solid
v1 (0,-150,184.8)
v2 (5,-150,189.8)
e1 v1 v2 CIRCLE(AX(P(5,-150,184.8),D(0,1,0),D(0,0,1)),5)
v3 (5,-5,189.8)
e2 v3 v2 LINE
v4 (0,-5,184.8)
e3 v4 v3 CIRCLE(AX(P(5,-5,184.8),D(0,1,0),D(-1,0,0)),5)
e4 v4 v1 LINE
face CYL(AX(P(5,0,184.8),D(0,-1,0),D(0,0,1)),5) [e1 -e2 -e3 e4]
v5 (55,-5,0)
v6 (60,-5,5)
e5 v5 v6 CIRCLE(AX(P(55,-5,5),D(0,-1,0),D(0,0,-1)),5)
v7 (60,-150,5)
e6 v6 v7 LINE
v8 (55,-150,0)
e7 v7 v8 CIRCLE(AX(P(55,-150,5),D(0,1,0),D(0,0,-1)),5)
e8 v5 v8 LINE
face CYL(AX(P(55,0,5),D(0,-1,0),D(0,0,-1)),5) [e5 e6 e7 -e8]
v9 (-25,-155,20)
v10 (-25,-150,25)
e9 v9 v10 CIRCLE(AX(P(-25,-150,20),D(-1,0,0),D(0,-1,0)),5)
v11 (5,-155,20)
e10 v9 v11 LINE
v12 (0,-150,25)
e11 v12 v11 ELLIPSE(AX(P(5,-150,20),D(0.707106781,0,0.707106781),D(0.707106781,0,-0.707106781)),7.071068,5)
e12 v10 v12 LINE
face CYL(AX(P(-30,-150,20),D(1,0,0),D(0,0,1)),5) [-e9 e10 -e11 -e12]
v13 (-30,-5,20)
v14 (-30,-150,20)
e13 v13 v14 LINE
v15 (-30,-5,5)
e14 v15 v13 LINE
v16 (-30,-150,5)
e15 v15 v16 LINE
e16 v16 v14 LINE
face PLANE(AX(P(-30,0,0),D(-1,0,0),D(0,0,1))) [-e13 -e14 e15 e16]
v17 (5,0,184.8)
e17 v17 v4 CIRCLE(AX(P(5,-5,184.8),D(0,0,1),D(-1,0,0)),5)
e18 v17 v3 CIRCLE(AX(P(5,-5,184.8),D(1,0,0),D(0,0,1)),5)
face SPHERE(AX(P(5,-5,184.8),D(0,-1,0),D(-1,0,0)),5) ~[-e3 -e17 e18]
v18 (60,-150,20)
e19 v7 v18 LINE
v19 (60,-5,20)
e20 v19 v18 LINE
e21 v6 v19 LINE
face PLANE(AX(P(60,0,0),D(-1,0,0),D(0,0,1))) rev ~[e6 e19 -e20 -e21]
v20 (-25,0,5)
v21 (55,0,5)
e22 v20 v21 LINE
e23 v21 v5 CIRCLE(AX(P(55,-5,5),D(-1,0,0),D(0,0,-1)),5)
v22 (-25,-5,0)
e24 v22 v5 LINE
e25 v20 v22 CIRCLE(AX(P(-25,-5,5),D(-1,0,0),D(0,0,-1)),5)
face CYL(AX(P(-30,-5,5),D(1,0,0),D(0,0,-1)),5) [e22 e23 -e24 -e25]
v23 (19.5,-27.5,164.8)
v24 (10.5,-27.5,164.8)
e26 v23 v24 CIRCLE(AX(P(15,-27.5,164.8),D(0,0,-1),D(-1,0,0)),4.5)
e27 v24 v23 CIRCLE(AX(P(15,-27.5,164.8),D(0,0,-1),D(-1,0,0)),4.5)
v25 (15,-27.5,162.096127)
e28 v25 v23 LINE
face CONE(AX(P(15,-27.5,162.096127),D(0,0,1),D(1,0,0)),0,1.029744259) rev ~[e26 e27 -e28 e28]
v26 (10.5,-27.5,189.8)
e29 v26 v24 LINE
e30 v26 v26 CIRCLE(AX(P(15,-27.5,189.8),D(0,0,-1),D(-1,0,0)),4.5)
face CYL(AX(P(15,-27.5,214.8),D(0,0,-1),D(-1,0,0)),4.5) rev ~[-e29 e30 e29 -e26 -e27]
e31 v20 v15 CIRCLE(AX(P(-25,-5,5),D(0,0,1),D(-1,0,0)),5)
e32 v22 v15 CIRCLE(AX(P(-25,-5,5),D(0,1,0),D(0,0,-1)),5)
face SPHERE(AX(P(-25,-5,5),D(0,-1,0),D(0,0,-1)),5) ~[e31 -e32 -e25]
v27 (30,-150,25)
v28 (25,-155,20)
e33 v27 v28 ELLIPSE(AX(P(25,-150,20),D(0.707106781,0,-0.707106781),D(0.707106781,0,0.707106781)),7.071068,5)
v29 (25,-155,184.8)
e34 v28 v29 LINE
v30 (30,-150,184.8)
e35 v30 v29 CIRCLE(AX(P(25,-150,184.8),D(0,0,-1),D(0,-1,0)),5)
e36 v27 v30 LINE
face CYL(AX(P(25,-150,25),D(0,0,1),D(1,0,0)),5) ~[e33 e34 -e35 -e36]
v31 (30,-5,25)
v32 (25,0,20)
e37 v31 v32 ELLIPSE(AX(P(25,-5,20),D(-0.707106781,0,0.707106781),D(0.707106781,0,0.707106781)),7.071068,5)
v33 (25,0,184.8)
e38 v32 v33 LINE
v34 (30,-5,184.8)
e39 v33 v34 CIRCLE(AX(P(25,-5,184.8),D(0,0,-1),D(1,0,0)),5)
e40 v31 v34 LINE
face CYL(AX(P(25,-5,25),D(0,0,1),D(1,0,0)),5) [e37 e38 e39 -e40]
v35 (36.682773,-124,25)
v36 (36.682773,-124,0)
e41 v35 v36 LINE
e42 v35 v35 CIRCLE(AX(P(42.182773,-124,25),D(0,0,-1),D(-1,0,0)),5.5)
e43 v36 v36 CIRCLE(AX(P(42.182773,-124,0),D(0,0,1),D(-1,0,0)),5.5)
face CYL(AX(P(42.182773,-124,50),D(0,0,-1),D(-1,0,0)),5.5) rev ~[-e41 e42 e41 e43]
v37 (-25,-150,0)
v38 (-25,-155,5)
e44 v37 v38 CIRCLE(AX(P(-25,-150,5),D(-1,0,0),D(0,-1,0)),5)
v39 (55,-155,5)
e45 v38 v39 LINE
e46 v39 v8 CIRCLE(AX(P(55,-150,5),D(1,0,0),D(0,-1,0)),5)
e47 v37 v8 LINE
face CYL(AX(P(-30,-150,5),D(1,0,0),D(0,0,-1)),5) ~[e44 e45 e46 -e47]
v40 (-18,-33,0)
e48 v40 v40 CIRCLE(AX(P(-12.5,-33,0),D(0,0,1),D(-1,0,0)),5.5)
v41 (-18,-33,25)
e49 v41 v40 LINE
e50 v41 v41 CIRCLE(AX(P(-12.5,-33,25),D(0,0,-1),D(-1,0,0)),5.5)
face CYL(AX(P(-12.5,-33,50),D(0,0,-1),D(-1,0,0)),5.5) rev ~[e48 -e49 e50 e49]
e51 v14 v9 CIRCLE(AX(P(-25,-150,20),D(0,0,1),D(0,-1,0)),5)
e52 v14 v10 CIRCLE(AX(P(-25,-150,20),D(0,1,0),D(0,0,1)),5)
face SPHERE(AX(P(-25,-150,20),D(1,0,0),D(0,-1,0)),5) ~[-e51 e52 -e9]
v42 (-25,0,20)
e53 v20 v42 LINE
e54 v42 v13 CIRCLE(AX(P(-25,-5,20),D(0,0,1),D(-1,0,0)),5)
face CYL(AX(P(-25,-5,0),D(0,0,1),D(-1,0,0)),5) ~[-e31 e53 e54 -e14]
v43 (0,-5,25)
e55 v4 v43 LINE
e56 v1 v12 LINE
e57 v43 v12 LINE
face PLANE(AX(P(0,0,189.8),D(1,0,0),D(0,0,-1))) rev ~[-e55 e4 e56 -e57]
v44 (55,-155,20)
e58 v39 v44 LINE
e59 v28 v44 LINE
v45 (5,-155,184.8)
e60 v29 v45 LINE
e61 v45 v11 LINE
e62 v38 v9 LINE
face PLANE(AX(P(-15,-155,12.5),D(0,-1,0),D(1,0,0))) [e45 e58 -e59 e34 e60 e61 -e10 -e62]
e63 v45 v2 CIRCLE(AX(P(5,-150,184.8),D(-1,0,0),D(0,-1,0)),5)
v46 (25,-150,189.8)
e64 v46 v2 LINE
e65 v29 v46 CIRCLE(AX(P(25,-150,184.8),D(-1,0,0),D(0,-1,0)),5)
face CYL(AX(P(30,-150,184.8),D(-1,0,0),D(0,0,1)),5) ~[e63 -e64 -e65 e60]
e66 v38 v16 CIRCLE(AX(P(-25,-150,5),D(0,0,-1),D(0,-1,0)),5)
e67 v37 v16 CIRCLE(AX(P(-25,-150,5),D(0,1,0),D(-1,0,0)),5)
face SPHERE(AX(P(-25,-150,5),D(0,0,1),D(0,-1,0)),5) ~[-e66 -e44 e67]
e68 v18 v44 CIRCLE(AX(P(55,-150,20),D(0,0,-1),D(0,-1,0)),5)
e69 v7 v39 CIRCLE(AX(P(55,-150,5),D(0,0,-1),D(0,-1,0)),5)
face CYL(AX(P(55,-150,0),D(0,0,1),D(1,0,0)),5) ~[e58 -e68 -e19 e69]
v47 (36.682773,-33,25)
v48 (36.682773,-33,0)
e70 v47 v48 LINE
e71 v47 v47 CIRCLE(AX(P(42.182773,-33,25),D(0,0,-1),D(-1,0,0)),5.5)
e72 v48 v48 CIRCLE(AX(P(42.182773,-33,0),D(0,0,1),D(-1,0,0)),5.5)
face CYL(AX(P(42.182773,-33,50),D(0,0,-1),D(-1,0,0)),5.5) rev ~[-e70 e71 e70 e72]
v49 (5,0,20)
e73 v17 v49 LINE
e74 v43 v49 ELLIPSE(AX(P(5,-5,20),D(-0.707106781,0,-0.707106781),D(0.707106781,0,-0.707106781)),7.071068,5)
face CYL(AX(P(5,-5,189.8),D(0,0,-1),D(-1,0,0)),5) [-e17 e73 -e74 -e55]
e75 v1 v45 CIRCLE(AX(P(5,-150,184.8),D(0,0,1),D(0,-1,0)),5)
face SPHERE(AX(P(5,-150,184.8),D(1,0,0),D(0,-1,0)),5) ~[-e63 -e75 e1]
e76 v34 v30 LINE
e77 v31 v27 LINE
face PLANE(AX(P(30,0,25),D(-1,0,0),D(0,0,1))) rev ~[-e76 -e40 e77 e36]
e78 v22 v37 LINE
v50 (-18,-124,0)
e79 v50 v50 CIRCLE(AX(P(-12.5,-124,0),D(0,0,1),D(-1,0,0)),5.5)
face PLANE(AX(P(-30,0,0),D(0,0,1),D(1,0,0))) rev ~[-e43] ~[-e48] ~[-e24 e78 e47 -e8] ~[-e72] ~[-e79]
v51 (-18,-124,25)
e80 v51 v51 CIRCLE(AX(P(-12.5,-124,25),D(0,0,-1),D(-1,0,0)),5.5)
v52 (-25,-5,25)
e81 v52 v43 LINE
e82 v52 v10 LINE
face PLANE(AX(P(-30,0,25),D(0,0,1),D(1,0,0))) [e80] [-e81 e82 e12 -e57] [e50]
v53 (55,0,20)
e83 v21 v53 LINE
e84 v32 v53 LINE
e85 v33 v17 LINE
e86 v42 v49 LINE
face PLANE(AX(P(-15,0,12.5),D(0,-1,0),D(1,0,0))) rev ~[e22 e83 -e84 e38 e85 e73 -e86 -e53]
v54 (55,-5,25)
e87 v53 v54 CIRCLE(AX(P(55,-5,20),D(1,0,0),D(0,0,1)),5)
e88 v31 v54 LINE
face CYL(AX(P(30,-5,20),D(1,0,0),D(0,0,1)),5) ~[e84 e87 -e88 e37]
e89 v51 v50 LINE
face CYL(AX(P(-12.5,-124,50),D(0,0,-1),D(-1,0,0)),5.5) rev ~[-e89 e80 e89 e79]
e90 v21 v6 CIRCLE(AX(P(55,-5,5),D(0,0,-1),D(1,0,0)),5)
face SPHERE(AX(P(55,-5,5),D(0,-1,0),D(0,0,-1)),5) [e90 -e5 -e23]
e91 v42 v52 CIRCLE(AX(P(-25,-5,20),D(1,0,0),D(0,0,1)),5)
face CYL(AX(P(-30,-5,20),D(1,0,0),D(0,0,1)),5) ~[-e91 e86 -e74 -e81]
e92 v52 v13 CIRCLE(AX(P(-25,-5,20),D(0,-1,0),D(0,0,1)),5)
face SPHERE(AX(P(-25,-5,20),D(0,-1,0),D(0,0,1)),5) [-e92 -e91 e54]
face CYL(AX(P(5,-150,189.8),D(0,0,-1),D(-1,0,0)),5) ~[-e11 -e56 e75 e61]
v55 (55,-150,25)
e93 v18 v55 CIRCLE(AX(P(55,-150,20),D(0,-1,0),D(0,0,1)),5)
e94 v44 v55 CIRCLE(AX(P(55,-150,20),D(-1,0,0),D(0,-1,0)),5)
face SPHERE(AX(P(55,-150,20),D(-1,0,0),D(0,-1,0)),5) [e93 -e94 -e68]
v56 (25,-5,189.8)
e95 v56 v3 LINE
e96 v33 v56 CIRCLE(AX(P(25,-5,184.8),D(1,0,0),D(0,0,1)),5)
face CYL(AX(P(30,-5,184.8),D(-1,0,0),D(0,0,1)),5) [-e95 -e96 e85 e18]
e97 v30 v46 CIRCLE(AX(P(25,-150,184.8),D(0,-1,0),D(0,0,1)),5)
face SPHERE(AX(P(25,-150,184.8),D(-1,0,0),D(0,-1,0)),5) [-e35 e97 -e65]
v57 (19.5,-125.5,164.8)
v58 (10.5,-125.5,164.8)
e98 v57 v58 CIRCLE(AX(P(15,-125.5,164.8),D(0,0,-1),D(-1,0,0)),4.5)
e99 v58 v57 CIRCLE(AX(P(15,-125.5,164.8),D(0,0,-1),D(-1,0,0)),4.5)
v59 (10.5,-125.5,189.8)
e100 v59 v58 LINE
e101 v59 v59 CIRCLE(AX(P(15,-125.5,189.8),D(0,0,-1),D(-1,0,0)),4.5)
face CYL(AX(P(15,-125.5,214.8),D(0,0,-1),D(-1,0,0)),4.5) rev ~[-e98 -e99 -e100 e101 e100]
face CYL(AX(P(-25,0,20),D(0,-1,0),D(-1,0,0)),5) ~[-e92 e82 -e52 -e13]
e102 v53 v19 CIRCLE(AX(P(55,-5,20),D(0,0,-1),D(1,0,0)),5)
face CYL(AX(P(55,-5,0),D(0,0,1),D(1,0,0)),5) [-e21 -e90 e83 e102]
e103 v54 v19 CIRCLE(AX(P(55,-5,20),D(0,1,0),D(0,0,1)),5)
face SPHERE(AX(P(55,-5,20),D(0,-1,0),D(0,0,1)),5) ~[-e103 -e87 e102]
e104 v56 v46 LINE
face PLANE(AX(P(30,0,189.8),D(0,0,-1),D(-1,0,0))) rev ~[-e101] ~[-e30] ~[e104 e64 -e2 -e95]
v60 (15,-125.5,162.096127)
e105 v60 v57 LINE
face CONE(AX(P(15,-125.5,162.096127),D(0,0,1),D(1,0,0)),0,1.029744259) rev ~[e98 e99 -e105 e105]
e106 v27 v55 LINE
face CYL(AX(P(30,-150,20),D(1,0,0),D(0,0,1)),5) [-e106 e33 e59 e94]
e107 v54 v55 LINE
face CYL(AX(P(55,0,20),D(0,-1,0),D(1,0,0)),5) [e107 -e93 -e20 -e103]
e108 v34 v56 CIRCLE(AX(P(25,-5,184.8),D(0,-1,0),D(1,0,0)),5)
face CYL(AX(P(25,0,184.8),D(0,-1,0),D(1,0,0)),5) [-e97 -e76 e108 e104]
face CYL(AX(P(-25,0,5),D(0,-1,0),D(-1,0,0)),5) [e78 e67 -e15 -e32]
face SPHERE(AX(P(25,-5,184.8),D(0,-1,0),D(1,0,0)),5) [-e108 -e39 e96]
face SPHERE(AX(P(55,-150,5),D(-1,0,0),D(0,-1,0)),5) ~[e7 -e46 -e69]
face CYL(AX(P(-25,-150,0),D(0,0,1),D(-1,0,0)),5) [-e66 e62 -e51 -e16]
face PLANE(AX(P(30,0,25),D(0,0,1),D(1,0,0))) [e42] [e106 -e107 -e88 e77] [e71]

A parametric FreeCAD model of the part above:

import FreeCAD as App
import Part
import Sketcher

V = App.Vector


def edges_at(feature, points):
    """Names of the edges that pass closest to the given points."""
    edges = feature.Shape.Edges
    near = lambda p: min(range(len(edges)), key=lambda i: edges[i].distToShape(Part.Vertex(*p))[0])
    return sorted({f"Edge{near(p) + 1}" for p in points})

doc = App.newDocument("Part")
params = doc.addObject("Spreadsheet::Sheet", "Params")
for row, (alias, value) in enumerate([
    ("sketch1_width", "90 mm"),
    ("sketch1_height", "25 mm"),
    ("sketch1_height2", "164.8 mm"),
    ("pad1_length", "155 mm"),
    ("fillet_radius", "5 mm"),
    ("sketch2_diameter", "9 mm"),
    ("hole_diameter", "9 mm"),
    ("hole_depth", "25 mm"),
    ("sketch3_diameter", "11 mm"),
    ("hole2_diameter", "11 mm"),
    ("hole2_depth", "25 mm"),
], start=1):
    params.set(f"A{row}", alias)
    params.set(f"B{row}", "=" + value)
    params.setAlias(f"B{row}", alias)

body = doc.addObject("PartDesign::Body", "Body")

# Sketch on XZ plane
sketch1 = doc.addObject("Sketcher::SketchObject", "Sketch")
body.addObject(sketch1)
sketch1.AttachmentSupport = (doc.XZ_Plane, [""])
sketch1.MapMode = "FlatFace"
sketch1.addGeometry(Part.LineSegment(V(-30, 25, 0), V(-30, 0, 0)), False)
sketch1.addGeometry(Part.LineSegment(V(-30, 0, 0), V(60, 0, 0)), False)
sketch1.addGeometry(Part.LineSegment(V(60, 0, 0), V(60, 25, 0)), False)
sketch1.addGeometry(Part.LineSegment(V(60, 25, 0), V(30, 25, 0)), False)
sketch1.addGeometry(Part.LineSegment(V(30, 25, 0), V(30, 190, 0)), False)
sketch1.addGeometry(Part.LineSegment(V(30, 190, 0), V(0, 190, 0)), False)
sketch1.addGeometry(Part.LineSegment(V(0, 190, 0), V(0, 25, 0)), False)
sketch1.addGeometry(Part.LineSegment(V(0, 25, 0), V(-30, 25, 0)), False)
sketch1.addConstraint(Sketcher.Constraint("Coincident", 0, 2, 1, 1))
sketch1.addConstraint(Sketcher.Constraint("Coincident", 1, 2, 2, 1))
sketch1.addConstraint(Sketcher.Constraint("Coincident", 2, 2, 3, 1))
sketch1.addConstraint(Sketcher.Constraint("Coincident", 3, 2, 4, 1))
sketch1.addConstraint(Sketcher.Constraint("Coincident", 4, 2, 5, 1))
sketch1.addConstraint(Sketcher.Constraint("Coincident", 5, 2, 6, 1))
sketch1.addConstraint(Sketcher.Constraint("Coincident", 6, 2, 7, 1))
sketch1.addConstraint(Sketcher.Constraint("Coincident", 7, 2, 0, 1))
sketch1.addConstraint(Sketcher.Constraint("Vertical", 0))
sketch1.addConstraint(Sketcher.Constraint("Horizontal", 1))
sketch1.addConstraint(Sketcher.Constraint("Vertical", 2))
sketch1.addConstraint(Sketcher.Constraint("Horizontal", 3))
sketch1.addConstraint(Sketcher.Constraint("Vertical", 4))
sketch1.addConstraint(Sketcher.Constraint("Horizontal", 5))
sketch1.addConstraint(Sketcher.Constraint("Vertical", 6))
sketch1.addConstraint(Sketcher.Constraint("Horizontal", 7))
sketch1.addConstraint(Sketcher.Constraint("Symmetric", 3, 2, 7, 2, -2))
sketch1.addConstraint(Sketcher.Constraint("PointOnObject", 0, 2, -1))
sketch1.addConstraint(Sketcher.Constraint("PointOnObject", 5, 2, -2))
sketch1.addConstraint(Sketcher.Constraint("Equal", 3, 5))
sketch1.addConstraint(Sketcher.Constraint("DistanceX", 1, 1, 1, 2, 90.0))
sketch1.addConstraint(Sketcher.Constraint("DistanceY", 0, 2, 0, 1, 25.0))
sketch1.addConstraint(Sketcher.Constraint("DistanceY", 4, 1, 4, 2, 164.8))
sketch1.setExpression("Constraints[20]", "Params.sketch1_width")
sketch1.setExpression("Constraints[21]", "Params.sketch1_height")
sketch1.setExpression("Constraints[22]", "Params.sketch1_height2")
pad1 = doc.addObject("PartDesign::Pad", "Pad")
body.addObject(pad1)
pad1.Profile = sketch1
pad1.setExpression("Length", "Params.pad1_length")
doc.recompute()

fillet = doc.addObject("PartDesign::Fillet", "Fillet")
body.addObject(fillet)
fillet.Base = (pad1, edges_at(pad1, [
    (15, -155, 189.8),
    (0, -155, 107.4),
    (30, -155, 107.4),
    (45, -155, 25),
    (-15, -155, 25),
    (-30, -155, 12.5),
    (15, -155, 0),
    (60, -155, 12.5),
    (60, -77.5, 25),
    (60, -77.5, 0),
    (-30, -77.5, 25),
    (-30, -77.5, 0),
    (0, -77.5, 189.8),
    (30, -77.5, 189.8),
    (0, 0, 107.4),
    (30, 0, 107.4),
    (45, 0, 25),
    (15, 0, 0),
    (-15, 0, 25),
    (-30, 0, 12.5),
    (60, 0, 12.5),
    (15, 0, 189.8),
]))
fillet.setExpression("Radius", "Params.fillet_radius")

# Sketch on XY plane
sketch2 = doc.addObject("Sketcher::SketchObject", "Sketch001")
body.addObject(sketch2)
sketch2.AttachmentSupport = (doc.XY_Plane, [""])
sketch2.MapMode = "FlatFace"
sketch2.AttachmentOffset = App.Placement(V(0, 0, 189.8), App.Rotation())
sketch2.addGeometry(Part.Circle(V(15, -27.5, 0), V(0, 0, 1), 4.5), False)
sketch2.addGeometry(Part.Circle(V(15, -125.5, 0), V(0, 0, 1), 4.5), False)
sketch2.addConstraint(Sketcher.Constraint("Equal", 0, 1))
sketch2.addConstraint(Sketcher.Constraint("Vertical", 0, 3, 1, 3))
sketch2.addConstraint(Sketcher.Constraint("Diameter", 0, 9.0))
sketch2.addConstraint(Sketcher.Constraint("DistanceX", -1, 1, 0, 3, 15.0))
sketch2.addConstraint(Sketcher.Constraint("DistanceY", 1, 3, 0, 3, 98.0))
sketch2.addConstraint(Sketcher.Constraint("DistanceY", 0, 3, -1, 1, 27.5))
sketch2.setExpression("Constraints[2]", "Params.sketch2_diameter")
doc.recompute()
hole = doc.addObject("PartDesign::Hole", "Hole")
body.addObject(hole)
hole.Profile = sketch2
hole.ThreadType = "None"
hole.setExpression("Diameter", "Params.hole_diameter")
hole.DepthType = "Dimension"
hole.setExpression("Depth", "Params.hole_depth")
hole.DrillPoint = "Angled"
hole.DrillPointAngle = 118

# Sketch on XY plane
sketch3 = doc.addObject("Sketcher::SketchObject", "Sketch002")
body.addObject(sketch3)
sketch3.AttachmentSupport = (doc.XY_Plane, [""])
sketch3.MapMode = "FlatFace"
sketch3.AttachmentOffset = App.Placement(V(0, 0, 25), App.Rotation())
sketch3.addGeometry(Part.Circle(V(-12, -33, 0), V(0, 0, 1), 6), False)
sketch3.addGeometry(Part.Circle(V(-12, -124, 0), V(0, 0, 1), 6), False)
sketch3.addGeometry(Part.Circle(V(42, -33, 0), V(0, 0, 1), 6), False)
sketch3.addGeometry(Part.Circle(V(42, -124, 0), V(0, 0, 1), 6), False)
sketch3.addConstraint(Sketcher.Constraint("Equal", 0, 1))
sketch3.addConstraint(Sketcher.Constraint("Equal", 1, 2))
sketch3.addConstraint(Sketcher.Constraint("Equal", 2, 3))
sketch3.addConstraint(Sketcher.Constraint("Horizontal", 0, 3, 2, 3))
sketch3.addConstraint(Sketcher.Constraint("Horizontal", 1, 3, 3, 3))
sketch3.addConstraint(Sketcher.Constraint("Vertical", 0, 3, 1, 3))
sketch3.addConstraint(Sketcher.Constraint("Vertical", 2, 3, 3, 3))
sketch3.addConstraint(Sketcher.Constraint("Diameter", 0, 11.0))
sketch3.addConstraint(Sketcher.Constraint("DistanceY", 0, 3, -1, 1, 33.0))
sketch3.addConstraint(Sketcher.Constraint("DistanceY", 1, 3, -1, 1, 124.0))
sketch3.addConstraint(Sketcher.Constraint("DistanceX", 0, 3, -1, 1, 12.5))
sketch3.addConstraint(Sketcher.Constraint("DistanceX", -1, 1, 2, 3, 42.182773))
sketch3.setExpression("Constraints[7]", "Params.sketch3_diameter")
doc.recompute()
hole2 = doc.addObject("PartDesign::Hole", "Hole001")
body.addObject(hole2)
hole2.Profile = sketch3
hole2.ThreadType = "None"
hole2.setExpression("Diameter", "Params.hole2_diameter")
hole2.DepthType = "Dimension"
hole2.setExpression("Depth", "Params.hole2_depth")
hole2.DrillPoint = "Angled"
hole2.DrillPointAngle = 118

doc.recompute()
